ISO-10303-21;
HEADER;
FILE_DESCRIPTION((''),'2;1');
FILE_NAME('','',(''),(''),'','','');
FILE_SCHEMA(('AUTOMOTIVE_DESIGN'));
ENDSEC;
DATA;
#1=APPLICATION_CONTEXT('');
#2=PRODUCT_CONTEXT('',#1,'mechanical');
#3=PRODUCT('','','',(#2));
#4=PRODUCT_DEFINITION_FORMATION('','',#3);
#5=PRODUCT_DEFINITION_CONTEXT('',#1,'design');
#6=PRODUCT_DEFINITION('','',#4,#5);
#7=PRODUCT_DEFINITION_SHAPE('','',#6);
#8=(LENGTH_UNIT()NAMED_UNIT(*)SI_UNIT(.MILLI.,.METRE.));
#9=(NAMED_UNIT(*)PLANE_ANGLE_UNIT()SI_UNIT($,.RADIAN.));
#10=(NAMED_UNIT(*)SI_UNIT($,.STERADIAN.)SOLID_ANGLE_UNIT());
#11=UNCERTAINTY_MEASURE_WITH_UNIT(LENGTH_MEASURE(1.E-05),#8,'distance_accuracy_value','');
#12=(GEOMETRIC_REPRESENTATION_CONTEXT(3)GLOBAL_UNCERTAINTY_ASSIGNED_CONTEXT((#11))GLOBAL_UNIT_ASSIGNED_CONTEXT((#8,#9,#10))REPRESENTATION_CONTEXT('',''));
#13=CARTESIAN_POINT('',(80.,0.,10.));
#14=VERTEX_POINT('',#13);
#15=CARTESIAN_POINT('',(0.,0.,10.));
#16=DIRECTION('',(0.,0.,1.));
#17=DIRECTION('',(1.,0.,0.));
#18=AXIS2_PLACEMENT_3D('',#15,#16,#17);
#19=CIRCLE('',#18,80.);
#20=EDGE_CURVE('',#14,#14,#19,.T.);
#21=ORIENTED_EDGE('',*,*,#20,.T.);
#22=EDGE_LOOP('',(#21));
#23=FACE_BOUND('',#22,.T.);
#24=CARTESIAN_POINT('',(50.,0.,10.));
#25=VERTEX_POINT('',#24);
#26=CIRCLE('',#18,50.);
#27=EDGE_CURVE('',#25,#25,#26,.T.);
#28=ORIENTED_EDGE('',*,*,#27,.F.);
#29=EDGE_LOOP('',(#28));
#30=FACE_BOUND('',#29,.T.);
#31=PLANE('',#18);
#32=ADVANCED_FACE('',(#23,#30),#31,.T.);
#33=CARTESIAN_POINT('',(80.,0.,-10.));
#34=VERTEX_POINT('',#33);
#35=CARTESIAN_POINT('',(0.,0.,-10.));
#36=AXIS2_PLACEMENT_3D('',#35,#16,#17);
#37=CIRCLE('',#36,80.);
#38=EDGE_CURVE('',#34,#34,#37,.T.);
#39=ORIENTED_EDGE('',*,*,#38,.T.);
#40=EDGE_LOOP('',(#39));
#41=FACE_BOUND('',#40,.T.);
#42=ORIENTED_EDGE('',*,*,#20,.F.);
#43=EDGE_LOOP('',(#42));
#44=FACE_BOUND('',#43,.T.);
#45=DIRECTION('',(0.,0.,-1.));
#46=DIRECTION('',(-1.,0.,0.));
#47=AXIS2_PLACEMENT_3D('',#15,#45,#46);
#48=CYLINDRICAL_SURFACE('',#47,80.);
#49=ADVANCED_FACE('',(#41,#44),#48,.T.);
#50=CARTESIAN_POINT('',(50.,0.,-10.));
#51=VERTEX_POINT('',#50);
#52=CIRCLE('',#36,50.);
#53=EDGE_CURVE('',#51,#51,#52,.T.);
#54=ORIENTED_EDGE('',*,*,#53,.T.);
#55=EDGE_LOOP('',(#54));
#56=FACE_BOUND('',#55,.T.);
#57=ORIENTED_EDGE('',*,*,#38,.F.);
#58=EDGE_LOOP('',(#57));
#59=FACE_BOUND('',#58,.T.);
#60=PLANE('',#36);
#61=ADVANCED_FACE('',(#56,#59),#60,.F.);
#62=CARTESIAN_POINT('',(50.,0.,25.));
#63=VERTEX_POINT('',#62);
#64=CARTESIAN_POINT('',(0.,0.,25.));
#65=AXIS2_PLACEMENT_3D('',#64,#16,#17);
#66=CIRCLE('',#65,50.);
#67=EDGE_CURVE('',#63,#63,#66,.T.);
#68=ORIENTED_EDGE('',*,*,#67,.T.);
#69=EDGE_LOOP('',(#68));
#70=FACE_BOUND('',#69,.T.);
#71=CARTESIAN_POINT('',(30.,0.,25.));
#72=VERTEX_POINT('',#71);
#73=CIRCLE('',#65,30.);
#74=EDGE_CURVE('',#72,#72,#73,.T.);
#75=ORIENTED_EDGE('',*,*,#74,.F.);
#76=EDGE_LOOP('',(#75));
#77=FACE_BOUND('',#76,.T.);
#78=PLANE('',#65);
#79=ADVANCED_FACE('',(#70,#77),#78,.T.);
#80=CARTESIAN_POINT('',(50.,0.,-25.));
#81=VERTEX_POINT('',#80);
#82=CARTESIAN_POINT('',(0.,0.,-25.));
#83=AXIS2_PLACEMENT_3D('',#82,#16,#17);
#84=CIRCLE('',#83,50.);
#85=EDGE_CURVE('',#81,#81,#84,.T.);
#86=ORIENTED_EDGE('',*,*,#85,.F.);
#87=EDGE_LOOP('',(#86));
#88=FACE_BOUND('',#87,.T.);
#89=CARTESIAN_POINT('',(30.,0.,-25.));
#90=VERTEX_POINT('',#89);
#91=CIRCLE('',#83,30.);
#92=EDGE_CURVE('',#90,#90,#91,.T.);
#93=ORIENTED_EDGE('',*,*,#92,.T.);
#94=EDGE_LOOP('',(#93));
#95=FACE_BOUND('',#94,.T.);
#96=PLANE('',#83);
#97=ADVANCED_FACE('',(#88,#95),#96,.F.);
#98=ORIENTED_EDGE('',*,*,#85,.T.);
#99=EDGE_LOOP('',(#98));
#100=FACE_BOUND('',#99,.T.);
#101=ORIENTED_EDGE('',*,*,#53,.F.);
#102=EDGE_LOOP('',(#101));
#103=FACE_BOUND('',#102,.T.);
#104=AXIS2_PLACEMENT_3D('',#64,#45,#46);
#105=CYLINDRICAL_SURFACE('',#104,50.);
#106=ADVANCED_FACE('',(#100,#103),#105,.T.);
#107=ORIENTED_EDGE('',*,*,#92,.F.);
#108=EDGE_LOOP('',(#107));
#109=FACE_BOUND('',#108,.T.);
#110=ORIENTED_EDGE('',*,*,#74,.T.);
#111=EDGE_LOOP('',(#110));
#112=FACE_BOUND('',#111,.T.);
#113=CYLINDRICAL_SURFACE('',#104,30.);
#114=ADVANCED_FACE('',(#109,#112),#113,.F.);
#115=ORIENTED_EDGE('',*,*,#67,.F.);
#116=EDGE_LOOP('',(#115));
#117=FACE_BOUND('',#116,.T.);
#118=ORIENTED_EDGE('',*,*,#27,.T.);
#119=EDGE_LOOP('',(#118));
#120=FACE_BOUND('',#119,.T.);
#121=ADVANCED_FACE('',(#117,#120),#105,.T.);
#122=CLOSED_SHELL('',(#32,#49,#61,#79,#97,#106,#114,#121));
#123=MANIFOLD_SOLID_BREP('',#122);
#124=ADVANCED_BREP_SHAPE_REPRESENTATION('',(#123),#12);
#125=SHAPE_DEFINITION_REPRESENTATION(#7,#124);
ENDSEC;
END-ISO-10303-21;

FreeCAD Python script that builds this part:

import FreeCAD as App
import Part
import Sketcher
from FreeCAD import Vector

doc = App.newDocument("Part")
params = doc.addObject("Spreadsheet::Sheet", "Params")
for row, (alias, value) in enumerate([
    ("sketch1_diameter", "100 mm"),
    ("sketch1_diameter2", "60 mm"),
    ("pad1_length", "50 mm"),
    ("sketch2_diameter", "160 mm"),
    ("sketch2_diameter2", "100 mm"),
    ("pad2_length", "20 mm"),
], start=1):
    params.set(f"A{row}", alias)
    params.set(f"B{row}", "=" + value)
    params.setAlias(f"B{row}", alias)

body = doc.addObject("PartDesign::Body", "Body")

# Sketch on XY plane
sketch1 = doc.addObject("Sketcher::SketchObject", "Sketch")
body.addObject(sketch1)
sketch1.AttachmentSupport = (doc.XY_Plane, [""])
sketch1.MapMode = "FlatFace"
sketch1.addGeometry([
    Part.Circle(Vector(0, 0, 0), Vector(0, 0, 1), 50),
    Part.Circle(Vector(0, 0, 0), Vector(0, 0, 1), 30),
], False)
sketch1.addConstraint([
    Sketcher.Constraint("Coincident", 0, 3, -1, 1),
    Sketcher.Constraint("Coincident", 1, 3, -1, 1),
    Sketcher.Constraint("Diameter", 0, 100.0),
    Sketcher.Constraint("Diameter", 1, 60.0),
])
sketch1.setExpression("Constraints[2]", "Params.sketch1_diameter")
sketch1.setExpression("Constraints[3]", "Params.sketch1_diameter2")
pad1 = doc.addObject("PartDesign::Pad", "Pad")
body.addObject(pad1)
pad1.Profile = sketch1
pad1.setExpression("Length", "Params.pad1_length")
pad1.Midplane = True

# Sketch on XY plane
sketch2 = doc.addObject("Sketcher::SketchObject", "Sketch001")
body.addObject(sketch2)
sketch2.AttachmentSupport = (doc.XY_Plane, [""])
sketch2.MapMode = "FlatFace"
sketch2.addGeometry([
    Part.Circle(Vector(0, 0, 0), Vector(0, 0, 1), 80),
    Part.Circle(Vector(0, 0, 0), Vector(0, 0, 1), 50),
], False)
sketch2.addConstraint([
    Sketcher.Constraint("Coincident", 0, 3, -1, 1),
    Sketcher.Constraint("Coincident", 1, 3, -1, 1),
    Sketcher.Constraint("Diameter", 0, 160.0),
    Sketcher.Constraint("Diameter", 1, 100.0),
])
sketch2.setExpression("Constraints[2]", "Params.sketch2_diameter")
sketch2.setExpression("Constraints[3]", "Params.sketch2_diameter2")
pad2 = doc.addObject("PartDesign::Pad", "Pad001")
body.addObject(pad2)
pad2.Profile = sketch2
pad2.setExpression("Length", "Params.pad2_length")
pad2.Midplane = True

doc.recompute()
